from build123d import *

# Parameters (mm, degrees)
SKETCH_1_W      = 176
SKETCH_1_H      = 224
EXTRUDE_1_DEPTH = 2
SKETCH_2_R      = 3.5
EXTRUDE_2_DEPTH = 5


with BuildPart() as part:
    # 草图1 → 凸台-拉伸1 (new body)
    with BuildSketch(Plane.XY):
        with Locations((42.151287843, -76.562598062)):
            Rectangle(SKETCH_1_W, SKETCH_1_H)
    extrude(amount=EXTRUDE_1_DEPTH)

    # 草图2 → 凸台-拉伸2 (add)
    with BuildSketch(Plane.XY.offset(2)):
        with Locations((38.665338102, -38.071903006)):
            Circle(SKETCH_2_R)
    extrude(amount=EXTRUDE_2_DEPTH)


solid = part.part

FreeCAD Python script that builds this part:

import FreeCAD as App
import Part
import Sketcher
from FreeCAD import Vector


def add_polygon(sketch, points):
    """Adds a closed chain of lines whose ends are joined by coincident constraints."""
    first, n = sketch.GeometryCount, len(points)
    for a, b in zip(points, points[1:] + points[:1]):
        sketch.addGeometry(Part.LineSegment(App.Vector(*a, 0), App.Vector(*b, 0)), False)
    for i in range(n):
        sketch.addConstraint(Sketcher.Constraint("Coincident", first + i, 2, first + (i + 1) % n, 1))

doc = App.newDocument("Part")
body = doc.addObject("PartDesign::Body", "Body")

sketch1 = body.newObject("Sketcher::SketchObject", "Sketch")
sketch1.AttachmentSupport = (doc.getObject("XY_Plane"), [""])
sketch1.MapMode = "FlatFace"
add_polygon(sketch1, [(-45.848712, 35.437402), (-45.848712, -188.562598), (130.151288, -188.562598), (130.151288, 35.437402)])
sketch1.addConstraint(Sketcher.Constraint("Vertical", 0))
sketch1.addConstraint(Sketcher.Constraint("Horizontal", 1))
sketch1.addConstraint(Sketcher.Constraint("Vertical", 2))
sketch1.addConstraint(Sketcher.Constraint("Horizontal", 3))
sketch1.addConstraint(Sketcher.Constraint("DistanceX", 1, 1, 1, 2, 176.0))
sketch1.addConstraint(Sketcher.Constraint("DistanceY", 0, 2, 0, 1, 224.0))
sketch1.addConstraint(Sketcher.Constraint("DistanceY", 0, 2, -1, 1, 188.562598))
sketch1.addConstraint(Sketcher.Constraint("DistanceX", 0, 2, -1, 1, 45.848712))
pad1 = body.newObject("PartDesign::Pad", "Pad")
pad1.Profile = sketch1
pad1.Length = 2

sketch2 = body.newObject("Sketcher::SketchObject", "Sketch001")
sketch2.AttachmentSupport = (doc.getObject("XY_Plane"), [""])
sketch2.MapMode = "FlatFace"
sketch2.AttachmentOffset = App.Placement(Vector(0, 0, 2), App.Rotation())
sketch2.addGeometry(Part.Circle(Vector(38.665338, -38.071903, 0), Vector(0, 0, 1), 3.5), False)
sketch2.addConstraint(Sketcher.Constraint("Diameter", 0, 7.0))
sketch2.addConstraint(Sketcher.Constraint("DistanceX", -1, 1, 0, 3, 38.665338))
sketch2.addConstraint(Sketcher.Constraint("DistanceY", 0, 3, -1, 1, 38.071903))
pad2 = body.newObject("PartDesign::Pad", "Pad001")
pad2.Profile = sketch2
pad2.Length = 5

doc.recompute()
